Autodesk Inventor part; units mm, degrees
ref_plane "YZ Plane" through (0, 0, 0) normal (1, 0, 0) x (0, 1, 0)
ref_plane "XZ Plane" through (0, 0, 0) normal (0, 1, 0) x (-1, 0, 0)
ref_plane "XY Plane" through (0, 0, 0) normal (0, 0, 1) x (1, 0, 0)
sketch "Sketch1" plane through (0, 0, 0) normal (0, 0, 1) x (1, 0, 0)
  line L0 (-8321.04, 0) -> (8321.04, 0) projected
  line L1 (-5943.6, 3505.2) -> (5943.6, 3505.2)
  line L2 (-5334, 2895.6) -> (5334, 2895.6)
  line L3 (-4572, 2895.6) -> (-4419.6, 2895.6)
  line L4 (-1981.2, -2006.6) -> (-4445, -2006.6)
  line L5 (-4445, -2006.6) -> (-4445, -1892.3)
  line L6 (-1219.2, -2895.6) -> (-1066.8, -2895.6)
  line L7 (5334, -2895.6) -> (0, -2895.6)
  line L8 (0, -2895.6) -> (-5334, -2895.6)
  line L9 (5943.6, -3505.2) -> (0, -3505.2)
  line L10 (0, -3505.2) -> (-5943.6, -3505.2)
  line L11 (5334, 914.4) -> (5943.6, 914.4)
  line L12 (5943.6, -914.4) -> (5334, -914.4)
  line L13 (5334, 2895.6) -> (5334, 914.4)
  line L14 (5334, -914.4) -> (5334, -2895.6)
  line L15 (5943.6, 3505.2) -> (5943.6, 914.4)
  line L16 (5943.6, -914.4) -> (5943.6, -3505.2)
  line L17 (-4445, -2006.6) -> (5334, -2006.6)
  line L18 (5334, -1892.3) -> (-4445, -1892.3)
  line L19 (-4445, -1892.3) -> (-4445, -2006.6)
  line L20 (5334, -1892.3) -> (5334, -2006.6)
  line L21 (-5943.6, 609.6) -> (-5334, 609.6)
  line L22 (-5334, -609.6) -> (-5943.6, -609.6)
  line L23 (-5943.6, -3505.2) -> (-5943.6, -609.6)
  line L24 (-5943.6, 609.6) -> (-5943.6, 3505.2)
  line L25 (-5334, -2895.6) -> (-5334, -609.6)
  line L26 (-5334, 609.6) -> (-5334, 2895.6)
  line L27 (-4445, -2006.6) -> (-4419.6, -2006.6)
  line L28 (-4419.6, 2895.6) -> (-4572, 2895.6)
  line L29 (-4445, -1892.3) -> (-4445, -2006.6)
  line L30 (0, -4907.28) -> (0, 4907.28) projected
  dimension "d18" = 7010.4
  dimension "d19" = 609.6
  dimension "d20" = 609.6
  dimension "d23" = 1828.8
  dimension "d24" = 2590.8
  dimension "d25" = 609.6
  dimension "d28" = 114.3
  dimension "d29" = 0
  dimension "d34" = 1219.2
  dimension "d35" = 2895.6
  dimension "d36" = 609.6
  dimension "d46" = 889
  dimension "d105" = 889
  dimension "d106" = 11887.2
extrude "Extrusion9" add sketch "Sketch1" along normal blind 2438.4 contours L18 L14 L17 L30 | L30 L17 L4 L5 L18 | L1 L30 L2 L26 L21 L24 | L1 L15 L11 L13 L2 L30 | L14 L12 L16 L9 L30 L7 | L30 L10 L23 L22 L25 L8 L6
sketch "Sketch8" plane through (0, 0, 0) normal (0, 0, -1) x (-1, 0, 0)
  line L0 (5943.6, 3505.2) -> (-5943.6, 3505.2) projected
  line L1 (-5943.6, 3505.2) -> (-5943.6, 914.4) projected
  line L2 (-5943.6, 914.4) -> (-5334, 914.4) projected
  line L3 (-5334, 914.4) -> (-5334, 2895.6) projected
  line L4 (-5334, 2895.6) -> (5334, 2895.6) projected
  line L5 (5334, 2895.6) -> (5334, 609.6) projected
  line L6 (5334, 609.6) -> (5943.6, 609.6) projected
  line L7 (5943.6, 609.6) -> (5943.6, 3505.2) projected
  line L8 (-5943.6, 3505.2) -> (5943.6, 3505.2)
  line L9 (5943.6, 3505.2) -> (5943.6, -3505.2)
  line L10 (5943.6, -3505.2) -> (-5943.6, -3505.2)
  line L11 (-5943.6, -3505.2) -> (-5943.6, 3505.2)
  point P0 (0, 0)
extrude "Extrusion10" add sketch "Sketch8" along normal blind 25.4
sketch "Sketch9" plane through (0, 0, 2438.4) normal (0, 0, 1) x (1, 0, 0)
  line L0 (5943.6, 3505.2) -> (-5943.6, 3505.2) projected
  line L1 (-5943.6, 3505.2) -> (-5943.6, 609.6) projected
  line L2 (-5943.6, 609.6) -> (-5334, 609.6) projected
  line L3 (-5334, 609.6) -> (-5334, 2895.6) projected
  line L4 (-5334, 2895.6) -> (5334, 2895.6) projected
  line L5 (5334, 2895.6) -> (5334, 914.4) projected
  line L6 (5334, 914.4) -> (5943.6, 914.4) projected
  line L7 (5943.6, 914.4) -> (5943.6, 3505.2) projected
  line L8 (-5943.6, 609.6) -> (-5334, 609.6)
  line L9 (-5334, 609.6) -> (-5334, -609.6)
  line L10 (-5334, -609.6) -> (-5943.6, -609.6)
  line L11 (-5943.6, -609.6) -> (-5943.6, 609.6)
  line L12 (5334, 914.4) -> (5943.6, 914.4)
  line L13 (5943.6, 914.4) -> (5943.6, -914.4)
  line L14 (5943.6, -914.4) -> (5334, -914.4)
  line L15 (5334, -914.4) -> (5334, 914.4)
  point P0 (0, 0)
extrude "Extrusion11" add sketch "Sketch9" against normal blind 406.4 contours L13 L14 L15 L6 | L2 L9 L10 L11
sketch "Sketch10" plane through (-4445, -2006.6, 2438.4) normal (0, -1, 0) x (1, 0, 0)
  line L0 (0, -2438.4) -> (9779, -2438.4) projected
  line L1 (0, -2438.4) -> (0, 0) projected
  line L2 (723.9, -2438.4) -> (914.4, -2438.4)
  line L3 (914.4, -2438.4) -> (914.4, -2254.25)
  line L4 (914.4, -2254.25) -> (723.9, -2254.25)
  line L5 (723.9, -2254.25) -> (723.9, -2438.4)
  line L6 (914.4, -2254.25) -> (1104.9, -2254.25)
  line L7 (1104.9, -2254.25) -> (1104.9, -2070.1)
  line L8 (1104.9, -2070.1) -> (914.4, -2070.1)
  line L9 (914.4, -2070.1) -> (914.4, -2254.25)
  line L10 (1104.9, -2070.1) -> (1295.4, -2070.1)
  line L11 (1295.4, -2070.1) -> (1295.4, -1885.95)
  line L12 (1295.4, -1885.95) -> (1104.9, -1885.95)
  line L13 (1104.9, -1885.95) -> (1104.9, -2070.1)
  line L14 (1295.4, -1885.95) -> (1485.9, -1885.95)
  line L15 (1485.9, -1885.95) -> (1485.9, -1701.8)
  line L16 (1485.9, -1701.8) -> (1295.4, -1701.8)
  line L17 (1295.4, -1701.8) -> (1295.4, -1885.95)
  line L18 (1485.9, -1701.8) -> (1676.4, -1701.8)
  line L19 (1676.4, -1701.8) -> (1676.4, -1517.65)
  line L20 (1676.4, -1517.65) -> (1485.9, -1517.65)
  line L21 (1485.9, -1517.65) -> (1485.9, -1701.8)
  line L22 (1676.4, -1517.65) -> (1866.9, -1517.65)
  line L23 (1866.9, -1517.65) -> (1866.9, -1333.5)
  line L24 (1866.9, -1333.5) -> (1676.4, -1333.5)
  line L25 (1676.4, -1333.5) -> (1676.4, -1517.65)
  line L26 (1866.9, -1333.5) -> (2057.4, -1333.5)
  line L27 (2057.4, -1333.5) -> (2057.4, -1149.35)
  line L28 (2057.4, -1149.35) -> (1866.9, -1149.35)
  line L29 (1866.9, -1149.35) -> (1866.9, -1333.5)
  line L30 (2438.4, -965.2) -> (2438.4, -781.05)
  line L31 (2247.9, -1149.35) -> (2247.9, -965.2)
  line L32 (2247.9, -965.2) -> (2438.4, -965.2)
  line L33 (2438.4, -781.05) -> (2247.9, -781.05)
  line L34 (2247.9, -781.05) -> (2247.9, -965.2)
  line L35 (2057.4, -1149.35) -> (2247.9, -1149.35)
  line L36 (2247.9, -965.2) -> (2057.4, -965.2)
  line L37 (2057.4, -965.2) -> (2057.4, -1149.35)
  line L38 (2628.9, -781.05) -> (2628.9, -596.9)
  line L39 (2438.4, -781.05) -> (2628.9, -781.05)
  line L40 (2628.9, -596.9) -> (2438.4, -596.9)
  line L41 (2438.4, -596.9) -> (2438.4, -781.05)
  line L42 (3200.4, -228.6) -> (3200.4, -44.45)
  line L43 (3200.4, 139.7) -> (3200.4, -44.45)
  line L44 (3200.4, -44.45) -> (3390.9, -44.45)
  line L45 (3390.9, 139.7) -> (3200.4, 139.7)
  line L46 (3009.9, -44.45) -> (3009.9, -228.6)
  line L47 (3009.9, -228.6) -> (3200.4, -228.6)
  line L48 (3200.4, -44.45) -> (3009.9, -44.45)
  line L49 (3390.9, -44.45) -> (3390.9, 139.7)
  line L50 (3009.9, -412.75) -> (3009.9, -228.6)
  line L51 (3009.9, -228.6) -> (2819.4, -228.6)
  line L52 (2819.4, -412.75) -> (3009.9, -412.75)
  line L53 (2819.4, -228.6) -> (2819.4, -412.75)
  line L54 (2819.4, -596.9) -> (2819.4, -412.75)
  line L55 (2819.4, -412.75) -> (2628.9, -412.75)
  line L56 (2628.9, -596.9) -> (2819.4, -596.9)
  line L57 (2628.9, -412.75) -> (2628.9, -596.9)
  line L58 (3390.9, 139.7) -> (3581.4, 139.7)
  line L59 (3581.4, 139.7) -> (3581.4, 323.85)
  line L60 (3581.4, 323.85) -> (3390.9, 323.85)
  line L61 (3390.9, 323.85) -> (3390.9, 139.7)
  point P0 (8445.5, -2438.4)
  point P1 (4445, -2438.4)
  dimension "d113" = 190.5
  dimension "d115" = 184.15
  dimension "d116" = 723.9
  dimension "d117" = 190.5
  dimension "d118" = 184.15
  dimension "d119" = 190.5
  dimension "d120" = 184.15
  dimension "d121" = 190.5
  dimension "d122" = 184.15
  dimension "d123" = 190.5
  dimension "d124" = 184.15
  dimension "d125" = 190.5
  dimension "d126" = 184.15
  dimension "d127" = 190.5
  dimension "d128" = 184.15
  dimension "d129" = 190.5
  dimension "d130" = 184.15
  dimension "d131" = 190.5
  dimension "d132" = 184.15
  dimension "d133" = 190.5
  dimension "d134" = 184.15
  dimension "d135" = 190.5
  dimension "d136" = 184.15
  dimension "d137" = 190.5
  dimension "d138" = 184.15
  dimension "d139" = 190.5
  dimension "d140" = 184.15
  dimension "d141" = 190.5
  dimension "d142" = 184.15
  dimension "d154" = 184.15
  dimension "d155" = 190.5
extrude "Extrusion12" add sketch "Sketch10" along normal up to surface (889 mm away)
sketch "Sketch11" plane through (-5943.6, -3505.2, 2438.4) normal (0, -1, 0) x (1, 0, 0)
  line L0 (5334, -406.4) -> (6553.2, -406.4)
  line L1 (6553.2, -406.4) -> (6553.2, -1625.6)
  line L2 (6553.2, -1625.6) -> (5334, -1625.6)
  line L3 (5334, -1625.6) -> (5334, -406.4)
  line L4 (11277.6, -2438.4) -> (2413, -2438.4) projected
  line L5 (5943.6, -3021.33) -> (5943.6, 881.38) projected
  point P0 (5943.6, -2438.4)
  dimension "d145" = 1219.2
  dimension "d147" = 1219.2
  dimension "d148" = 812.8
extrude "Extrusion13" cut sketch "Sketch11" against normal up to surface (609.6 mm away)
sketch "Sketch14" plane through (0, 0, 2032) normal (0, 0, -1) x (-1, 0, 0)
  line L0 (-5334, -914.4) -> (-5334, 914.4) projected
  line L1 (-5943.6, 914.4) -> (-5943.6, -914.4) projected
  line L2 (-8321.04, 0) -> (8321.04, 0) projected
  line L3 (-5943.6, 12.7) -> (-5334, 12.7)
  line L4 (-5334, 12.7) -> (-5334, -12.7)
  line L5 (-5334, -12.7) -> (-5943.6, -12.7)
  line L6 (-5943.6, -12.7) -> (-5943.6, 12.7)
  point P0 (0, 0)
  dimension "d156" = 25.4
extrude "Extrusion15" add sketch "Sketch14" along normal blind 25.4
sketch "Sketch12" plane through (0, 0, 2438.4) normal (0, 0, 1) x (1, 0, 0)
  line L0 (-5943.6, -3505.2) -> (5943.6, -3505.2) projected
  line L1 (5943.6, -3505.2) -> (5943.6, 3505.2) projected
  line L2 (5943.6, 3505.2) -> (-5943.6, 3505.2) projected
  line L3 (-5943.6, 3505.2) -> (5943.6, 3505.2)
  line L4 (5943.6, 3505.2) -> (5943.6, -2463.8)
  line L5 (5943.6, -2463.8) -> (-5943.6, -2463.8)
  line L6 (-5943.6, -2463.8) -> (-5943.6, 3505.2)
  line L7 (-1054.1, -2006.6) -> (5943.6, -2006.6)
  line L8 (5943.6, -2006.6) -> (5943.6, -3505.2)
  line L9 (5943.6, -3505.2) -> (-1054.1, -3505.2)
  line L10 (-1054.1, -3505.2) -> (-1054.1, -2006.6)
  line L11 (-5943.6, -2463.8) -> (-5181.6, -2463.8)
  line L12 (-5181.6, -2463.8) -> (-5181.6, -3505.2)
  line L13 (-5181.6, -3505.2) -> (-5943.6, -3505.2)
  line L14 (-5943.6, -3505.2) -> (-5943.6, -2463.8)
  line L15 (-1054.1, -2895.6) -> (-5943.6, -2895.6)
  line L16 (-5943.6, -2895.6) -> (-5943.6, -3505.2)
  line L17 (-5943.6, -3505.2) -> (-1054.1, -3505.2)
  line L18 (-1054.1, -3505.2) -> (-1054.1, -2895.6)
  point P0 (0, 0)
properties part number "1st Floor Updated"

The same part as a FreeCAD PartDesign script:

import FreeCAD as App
import Part
import Sketcher
from FreeCAD import Vector
Q = App.Units.Quantity


def add_polygon(sketch, points):
    """Adds a closed chain of lines whose ends are joined by coincident constraints."""
    first, n = sketch.GeometryCount, len(points)
    for a, b in zip(points, points[1:] + points[:1]):
        sketch.addGeometry(Part.LineSegment(App.Vector(*a, 0), App.Vector(*b, 0)), False)
    for i in range(n):
        sketch.addConstraint(Sketcher.Constraint("Coincident", first + i, 2, first + (i + 1) % n, 1))

doc = App.newDocument("Part")
body = doc.addObject("PartDesign::Body", "Body")
body.AllowCompound = True

# Sketch on XY plane
sketch1 = doc.addObject("Sketcher::SketchObject", "Sketch")
body.addObject(sketch1)
sketch1.AttachmentSupport = (doc.XY_Plane, [""])
sketch1.MapMode = "FlatFace"
add_polygon(sketch1, [(5334, -1892), (-4445, -1892), (-4445, -2007), (5334, -2007), (5334, -2896), (-5334, -2896), (-5334, -610), (-5944, -610), (-5944, -3505), (5944, -3505), (5944, -914), (5334, -914)])  # lines 0-11
add_polygon(sketch1, [(-5944, 3505), (-5944, 610), (-5334, 610), (-5334, 2896), (5334, 2896), (5334, 914), (5944, 914), (5944, 3505)])  # lines 12-19
sketch1.addConstraint([
    Sketcher.Constraint("Horizontal", 0),
    Sketcher.Constraint("Vertical", 1),
    Sketcher.Constraint("Horizontal", 2),
    Sketcher.Constraint("Vertical", 3),
    Sketcher.Constraint("Horizontal", 4),
    Sketcher.Constraint("Vertical", 5),
    Sketcher.Constraint("Horizontal", 6),
    Sketcher.Constraint("Vertical", 7),
    Sketcher.Constraint("Horizontal", 8),
    Sketcher.Constraint("Vertical", 9),
    Sketcher.Constraint("Horizontal", 10),
    Sketcher.Constraint("Vertical", 11),
    Sketcher.Constraint("Vertical", 12),
    Sketcher.Constraint("Horizontal", 13),
    Sketcher.Constraint("Vertical", 14),
    Sketcher.Constraint("Horizontal", 15),
    Sketcher.Constraint("Vertical", 16),
    Sketcher.Constraint("Horizontal", 17),
    Sketcher.Constraint("Vertical", 18),
    Sketcher.Constraint("Horizontal", 19),
    Sketcher.Constraint("Symmetric", 3, 2, 14, 2, -1, 1),
    Sketcher.Constraint("Symmetric", 7, 2, 18, 2, -1, 1),
    Sketcher.Constraint("Symmetric", 6, 2, 12, 2, -1),
    Sketcher.Constraint("Symmetric", 10, 2, 16, 2, -1),
    Sketcher.Constraint("Vertical", 3, 2, 10, 2),
    Sketcher.Constraint("Vertical", 5, 2, 13, 2),
    Sketcher.Constraint("Vertical", 9, 2, 17, 2),
    Sketcher.Constraint("DistanceX", 6, 2, 6, 1, Q("24 in")),
    Sketcher.Constraint("DistanceX", 8, 1, 8, 2, Q("468 in")),
    Sketcher.Constraint("DistanceY", 3, 2, 3, 1, Q("35 in")),
    Sketcher.Constraint("DistanceY", 7, 2, 7, 1, Q("114 in")),
    Sketcher.Constraint("DistanceY", 9, 1, 9, 2, Q("102 in")),
    Sketcher.Constraint("DistanceY", 1, 2, 1, 1, Q("4.5 in")),
    Sketcher.Constraint("DistanceY", 3, 2, -1, 1, Q("114 in")),
    Sketcher.Constraint("DistanceY", 5, 2, -1, 1, Q("24 in")),
    Sketcher.Constraint("DistanceX", 4, 2, 1, 2, Q("35 in")),
])
pad1 = doc.addObject("PartDesign::Pad", "Pad")
body.addObject(pad1)
pad1.Profile = sketch1
pad1.Length = Q("96 in")

# Sketch on XY plane
sketch2 = doc.addObject("Sketcher::SketchObject", "Sketch001")
body.addObject(sketch2)
sketch2.AttachmentSupport = (doc.XY_Plane, [""])
sketch2.MapMode = "FlatFace"
add_polygon(sketch2, [(-5944, 3505), (5944, 3505), (5944, -3505), (-5944, -3505)])  # lines 0-3
sketch2.addConstraint([
    Sketcher.Constraint("Horizontal", 0),
    Sketcher.Constraint("Vertical", 1),
    Sketcher.Constraint("Horizontal", 2),
    Sketcher.Constraint("Vertical", 3),
    Sketcher.Constraint("Symmetric", 0, 2, 2, 2, -1, 1),
    Sketcher.Constraint("DistanceX", 0, 1, 0, 2, Q("468 in")),
    Sketcher.Constraint("DistanceY", 1, 2, 1, 1, Q("276 in")),
])
pad2 = doc.addObject("PartDesign::Pad", "Pad001")
body.addObject(pad2)
pad2.Profile = sketch2
pad2.Length = Q("1 in")
pad2.Reversed = True

# Sketch on XY plane
sketch3 = doc.addObject("Sketcher::SketchObject", "Sketch002")
body.addObject(sketch3)
sketch3.AttachmentSupport = (doc.XY_Plane, [""])
sketch3.MapMode = "FlatFace"
sketch3.AttachmentOffset = App.Placement(Vector(0, 0, 96 * 25.4), App.Rotation())
add_polygon(sketch3, [(5944, -914), (5944, 914), (5334, 914), (5334, -914)])  # lines 0-3
add_polygon(sketch3, [(-5334, 610), (-5944, 610), (-5944, -610), (-5334, -610)])  # lines 4-7
sketch3.addConstraint([
    Sketcher.Constraint("Vertical", 0),
    Sketcher.Constraint("Horizontal", 1),
    Sketcher.Constraint("Vertical", 2),
    Sketcher.Constraint("Horizontal", 3),
    Sketcher.Constraint("Horizontal", 4),
    Sketcher.Constraint("Vertical", 5),
    Sketcher.Constraint("Horizontal", 6),
    Sketcher.Constraint("Vertical", 7),
    Sketcher.Constraint("Equal", 3, 4),
    Sketcher.Constraint("DistanceX", 1, 2, 1, 1, Q("24 in")),
    Sketcher.Constraint("DistanceY", 0, 1, 0, 2, Q("72 in")),
    Sketcher.Constraint("DistanceY", 5, 2, 5, 1, Q("48 in")),
    Sketcher.Constraint("DistanceX", -1, 1, 0, 2, Q("234 in")),
    Sketcher.Constraint("DistanceY", -1, 1, 0, 2, Q("36 in")),
    Sketcher.Constraint("DistanceX", 4, 2, -1, 1, Q("234 in")),
    Sketcher.Constraint("DistanceY", -1, 1, 4, 2, Q("24 in")),
])
pad3 = doc.addObject("PartDesign::Pad", "Pad002")
body.addObject(pad3)
pad3.Profile = sketch3
pad3.Length = Q("16 in")
pad3.Reversed = True

# Sketch on XZ plane
sketch4 = doc.addObject("Sketcher::SketchObject", "Sketch003")
body.addObject(sketch4)
sketch4.AttachmentSupport = (doc.XZ_Plane, [""])
sketch4.MapMode = "FlatFace"
sketch4.AttachmentOffset = App.Placement(Vector(0, 0, 79 * 25.4), App.Rotation())
add_polygon(sketch4, [(-3721, 184), (-3721, 0), (-3531, 0), (-3531, 184)])  # lines 0-3
add_polygon(sketch4, [(-1054, 2762), (-1054, 2578), (-864, 2578), (-864, 2762)])  # lines 4-7
add_polygon(sketch4, [(-1245, 2578), (-1245, 2394), (-1054, 2394), (-1054, 2578)])  # lines 8-11
add_polygon(sketch4, [(-1435, 2394), (-1435, 2210), (-1245, 2210), (-1245, 2394)])  # lines 12-15
add_polygon(sketch4, [(-1626, 2210), (-1626, 2026), (-1435, 2026), (-1435, 2210)])  # lines 16-19
add_polygon(sketch4, [(-1816, 2026), (-1816, 1842), (-1626, 1842), (-1626, 2026)])  # lines 20-23
add_polygon(sketch4, [(-2007, 1842), (-2007, 1657), (-1816, 1657), (-1816, 1842)])  # lines 24-27
add_polygon(sketch4, [(-2197, 1657), (-2197, 1473), (-2007, 1473), (-2007, 1657)])  # lines 28-31
add_polygon(sketch4, [(-2388, 1473), (-2388, 1289), (-2197, 1289), (-2197, 1473)])  # lines 32-35
add_polygon(sketch4, [(-2578, 1289), (-2578, 1105), (-2388, 1105), (-2388, 1289)])  # lines 36-39
add_polygon(sketch4, [(-2769, 1105), (-2769, 921), (-2578, 921), (-2578, 1105)])  # lines 40-43
add_polygon(sketch4, [(-2959, 921), (-2959, 737), (-2769, 737), (-2769, 921)])  # lines 44-47
add_polygon(sketch4, [(-3150, 737), (-3150, 552), (-2959, 552), (-2959, 737)])  # lines 48-51
add_polygon(sketch4, [(-3340, 552), (-3340, 368), (-3150, 368), (-3150, 552)])  # lines 52-55
add_polygon(sketch4, [(-3531, 368), (-3531, 184), (-3340, 184), (-3340, 368)])  # lines 56-59
sketch4.addConstraint([
    Sketcher.Constraint("Vertical", 0),
    Sketcher.Constraint("Horizontal", 1),
    Sketcher.Constraint("Vertical", 2),
    Sketcher.Constraint("Horizontal", 3),
    Sketcher.Constraint("Vertical", 4),
    Sketcher.Constraint("Horizontal", 5),
    Sketcher.Constraint("Vertical", 6),
    Sketcher.Constraint("Horizontal", 7),
    Sketcher.Constraint("Vertical", 8),
    Sketcher.Constraint("Horizontal", 9),
    Sketcher.Constraint("Vertical", 10),
    Sketcher.Constraint("Horizontal", 11),
    Sketcher.Constraint("Vertical", 12),
    Sketcher.Constraint("Horizontal", 13),
    Sketcher.Constraint("Vertical", 14),
    Sketcher.Constraint("Horizontal", 15),
    Sketcher.Constraint("Vertical", 16),
    Sketcher.Constraint("Horizontal", 17),
    Sketcher.Constraint("Vertical", 18),
    Sketcher.Constraint("Horizontal", 19),
    Sketcher.Constraint("Vertical", 20),
    Sketcher.Constraint("Horizontal", 21),
    Sketcher.Constraint("Vertical", 22),
    Sketcher.Constraint("Horizontal", 23),
    Sketcher.Constraint("Vertical", 24),
    Sketcher.Constraint("Horizontal", 25),
    Sketcher.Constraint("Vertical", 26),
    Sketcher.Constraint("Horizontal", 27),
    Sketcher.Constraint("Vertical", 28),
    Sketcher.Constraint("Horizontal", 29),
    Sketcher.Constraint("Vertical", 30),
    Sketcher.Constraint("Horizontal", 31),
    Sketcher.Constraint("Vertical", 32),
    Sketcher.Constraint("Horizontal", 33),
    Sketcher.Constraint("Vertical", 34),
    Sketcher.Constraint("Horizontal", 35),
    Sketcher.Constraint("Vertical", 36),
    Sketcher.Constraint("Horizontal", 37),
    Sketcher.Constraint("Vertical", 38),
    Sketcher.Constraint("Horizontal", 39),
    Sketcher.Constraint("Vertical", 40),
    Sketcher.Constraint("Horizontal", 41),
    Sketcher.Constraint("Vertical", 42),
    Sketcher.Constraint("Horizontal", 43),
    Sketcher.Constraint("Vertical", 44),
    Sketcher.Constraint("Horizontal", 45),
    Sketcher.Constraint("Vertical", 46),
    Sketcher.Constraint("Horizontal", 47),
    Sketcher.Constraint("Vertical", 48),
    Sketcher.Constraint("Horizontal", 49),
    Sketcher.Constraint("Vertical", 50),
    Sketcher.Constraint("Horizontal", 51),
    Sketcher.Constraint("Vertical", 52),
    Sketcher.Constraint("Horizontal", 53),
    Sketcher.Constraint("Vertical", 54),
    Sketcher.Constraint("Horizontal", 55),
    Sketcher.Constraint("Vertical", 56),
    Sketcher.Constraint("Horizontal", 57),
    Sketcher.Constraint("Vertical", 58),
    Sketcher.Constraint("Horizontal", 59),
    Sketcher.Constraint("Coincident", 10, 2, 4, 2),
    Sketcher.Constraint("Coincident", 14, 2, 8, 2),
    Sketcher.Constraint("Coincident", 18, 2, 12, 2),
    Sketcher.Constraint("Coincident", 22, 2, 16, 2),
    Sketcher.Constraint("Coincident", 26, 2, 20, 2),
    Sketcher.Constraint("Coincident", 30, 2, 24, 2),
    Sketcher.Constraint("Coincident", 34, 2, 28, 2),
    Sketcher.Constraint("Coincident", 38, 2, 32, 2),
    Sketcher.Constraint("Coincident", 42, 2, 36, 2),
    Sketcher.Constraint("Coincident", 46, 2, 40, 2),
    Sketcher.Constraint("Coincident", 50, 2, 44, 2),
    Sketcher.Constraint("Coincident", 54, 2, 48, 2),
    Sketcher.Constraint("Coincident", 56, 2, 2, 2),
    Sketcher.Constraint("Coincident", 58, 2, 52, 2),
    Sketcher.Constraint("PointOnObject", 0, 2, -1),
    Sketcher.Constraint("Equal", 3, 5),
    Sketcher.Constraint("Equal", 7, 9),
    Sketcher.Constraint("Equal", 11, 13),
    Sketcher.Constraint("Equal", 15, 17),
    Sketcher.Constraint("Equal", 19, 21),
    Sketcher.Constraint("Equal", 23, 25),
    Sketcher.Constraint("Equal", 27, 29),
    Sketcher.Constraint("Equal", 31, 33),
    Sketcher.Constraint("Equal", 35, 37),
    Sketcher.Constraint("Equal", 39, 41),
    Sketcher.Constraint("Equal", 43, 45),
    Sketcher.Constraint("Equal", 47, 49),
    Sketcher.Constraint("Equal", 51, 53),
    Sketcher.Constraint("Equal", 55, 57),
    Sketcher.Constraint("Equal", 2, 4),
    Sketcher.Constraint("Equal", 6, 8),
    Sketcher.Constraint("Equal", 10, 12),
    Sketcher.Constraint("Equal", 14, 16),
    Sketcher.Constraint("Equal", 18, 20),
    Sketcher.Constraint("Equal", 22, 24),
    Sketcher.Constraint("Equal", 26, 28),
    Sketcher.Constraint("Equal", 30, 32),
    Sketcher.Constraint("Equal", 34, 36),
    Sketcher.Constraint("Equal", 38, 40),
    Sketcher.Constraint("Equal", 42, 44),
    Sketcher.Constraint("Equal", 46, 48),
    Sketcher.Constraint("Equal", 50, 52),
    Sketcher.Constraint("Equal", 54, 56),
    Sketcher.Constraint("DistanceX", 1, 1, 1, 2, Q("7.5 in")),
    Sketcher.Constraint("DistanceY", 0, 2, 0, 1, Q("7.25 in")),
    Sketcher.Constraint("DistanceX", 1, 2, -1, 1, Q("139 in")),
])
pad4 = doc.addObject("PartDesign::Pad", "Pad003")
body.addObject(pad4)
pad4.Profile = sketch4
pad4.Length = Q("35 in")

# Sketch on XZ plane
sketch5 = doc.addObject("Sketcher::SketchObject", "Sketch004")
body.addObject(sketch5)
sketch5.AttachmentSupport = (doc.XZ_Plane, [""])
sketch5.MapMode = "FlatFace"
sketch5.AttachmentOffset = App.Placement(Vector(0, 0, 138 * 25.4), App.Rotation())
add_polygon(sketch5, [(-610, 2032), (-610, 813), (610, 813), (610, 2032)])  # lines 0-3
sketch5.addConstraint([
    Sketcher.Constraint("Vertical", 0),
    Sketcher.Constraint("Horizontal", 1),
    Sketcher.Constraint("Vertical", 2),
    Sketcher.Constraint("Horizontal", 3),
    Sketcher.Constraint("Equal", 3, 0),
    Sketcher.Constraint("DistanceX", 1, 1, 1, 2, Q("48 in")),
    Sketcher.Constraint("DistanceY", -1, 1, 0, 2, Q("32 in")),
    Sketcher.Constraint("DistanceX", 0, 2, -1, 1, Q("24 in")),
])
pocket1 = doc.addObject("PartDesign::Pocket", "Pocket")
body.addObject(pocket1)
pocket1.Profile = sketch5
pocket1.Length = Q("24 in")

# Sketch on XY plane
sketch6 = doc.addObject("Sketcher::SketchObject", "Sketch005")
body.addObject(sketch6)
sketch6.AttachmentSupport = (doc.XY_Plane, [""])
sketch6.MapMode = "FlatFace"
sketch6.AttachmentOffset = App.Placement(Vector(0, 0, 80 * 25.4), App.Rotation())
add_polygon(sketch6, [(5944, -13), (5334, -13), (5334, 13), (5944, 13)])  # lines 0-3
sketch6.addConstraint([
    Sketcher.Constraint("Horizontal", 0),
    Sketcher.Constraint("Vertical", 1),
    Sketcher.Constraint("Horizontal", 2),
    Sketcher.Constraint("Vertical", 3),
    Sketcher.Constraint("DistanceY", 1, 1, 1, 2, Q("1 in")),
    Sketcher.Constraint("DistanceX", 0, 2, 0, 1, Q("24 in")),
    Sketcher.Constraint("DistanceX", -1, 1, 0, 2, Q("210 in")),
    Sketcher.Constraint("DistanceY", 0, 2, -1, 1, Q("0.5 in")),
])
pad5 = doc.addObject("PartDesign::Pad", "Pad004")
body.addObject(pad5)
pad5.Profile = sketch6
pad5.Length = Q("1 in")
pad5.Reversed = True

doc.recompute()
